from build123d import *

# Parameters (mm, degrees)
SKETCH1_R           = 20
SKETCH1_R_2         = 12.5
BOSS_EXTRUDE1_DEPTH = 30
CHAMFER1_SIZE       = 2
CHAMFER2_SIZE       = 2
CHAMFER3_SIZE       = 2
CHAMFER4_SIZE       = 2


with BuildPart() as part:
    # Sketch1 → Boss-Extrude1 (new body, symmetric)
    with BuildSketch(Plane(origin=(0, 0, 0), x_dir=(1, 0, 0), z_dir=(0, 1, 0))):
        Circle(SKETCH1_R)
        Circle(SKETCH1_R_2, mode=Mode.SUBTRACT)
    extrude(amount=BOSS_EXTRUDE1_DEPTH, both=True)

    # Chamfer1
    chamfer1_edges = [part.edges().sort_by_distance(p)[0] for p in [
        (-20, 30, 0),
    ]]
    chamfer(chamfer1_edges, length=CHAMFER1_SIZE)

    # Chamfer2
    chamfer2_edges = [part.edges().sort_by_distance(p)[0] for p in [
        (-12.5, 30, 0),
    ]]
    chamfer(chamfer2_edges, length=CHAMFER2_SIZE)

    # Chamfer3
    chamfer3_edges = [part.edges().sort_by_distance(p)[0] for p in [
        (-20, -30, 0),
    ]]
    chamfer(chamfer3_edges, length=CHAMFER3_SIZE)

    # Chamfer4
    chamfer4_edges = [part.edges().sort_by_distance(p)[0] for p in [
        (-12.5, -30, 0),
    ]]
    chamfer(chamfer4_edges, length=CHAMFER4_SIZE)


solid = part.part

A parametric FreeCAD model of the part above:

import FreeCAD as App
import Part
import Sketcher

V = App.Vector


def edges_at(feature, points):
    """Names of the edges that pass closest to the given points."""
    edges = feature.Shape.Edges
    near = lambda p: min(range(len(edges)), key=lambda i: edges[i].distToShape(Part.Vertex(*p))[0])
    return sorted({f"Edge{near(p) + 1}" for p in points})

doc = App.newDocument("Part")
body = doc.addObject("PartDesign::Body", "Body")

sketch1 = body.newObject("Sketcher::SketchObject", "Sketch")
sketch1.AttachmentSupport = (doc.getObject("XZ_Plane"), [""])
sketch1.MapMode = "FlatFace"
sketch1.addGeometry([
    Part.Circle(V(0, 0, 0), V(0, 0, 1), 20),
    Part.Circle(V(0, 0, 0), V(0, 0, 1), 12),
], False)
sketch1.addConstraint([
    Sketcher.Constraint("Coincident", 0, 3, -1, 1),
    Sketcher.Constraint("Coincident", 1, 3, -1, 1),
    Sketcher.Constraint("Diameter", 0, 40.0),
    Sketcher.Constraint("Diameter", 1, 25.0),
])
pad1 = body.newObject("PartDesign::Pad", "Pad")
pad1.Profile = sketch1
pad1.Length = 60
pad1.Midplane = True
doc.recompute()

chamfer = body.newObject("PartDesign::Chamfer", "Chamfer")
chamfer.Base = (pad1, edges_at(pad1, [(-20, 30, 0)]))
chamfer.Size = 2
doc.recompute()

chamfer2 = body.newObject("PartDesign::Chamfer", "Chamfer001")
chamfer2.Base = (chamfer, edges_at(chamfer, [(-12.5, 30, 0)]))
chamfer2.Size = 2
doc.recompute()

chamfer3 = body.newObject("PartDesign::Chamfer", "Chamfer002")
chamfer3.Base = (chamfer2, edges_at(chamfer2, [(-20, -30, 0)]))
chamfer3.Size = 2
doc.recompute()

chamfer4 = body.newObject("PartDesign::Chamfer", "Chamfer003")
chamfer4.Base = (chamfer3, edges_at(chamfer3, [(-12.5, -30, 0)]))
chamfer4.Size = 2

doc.recompute()
